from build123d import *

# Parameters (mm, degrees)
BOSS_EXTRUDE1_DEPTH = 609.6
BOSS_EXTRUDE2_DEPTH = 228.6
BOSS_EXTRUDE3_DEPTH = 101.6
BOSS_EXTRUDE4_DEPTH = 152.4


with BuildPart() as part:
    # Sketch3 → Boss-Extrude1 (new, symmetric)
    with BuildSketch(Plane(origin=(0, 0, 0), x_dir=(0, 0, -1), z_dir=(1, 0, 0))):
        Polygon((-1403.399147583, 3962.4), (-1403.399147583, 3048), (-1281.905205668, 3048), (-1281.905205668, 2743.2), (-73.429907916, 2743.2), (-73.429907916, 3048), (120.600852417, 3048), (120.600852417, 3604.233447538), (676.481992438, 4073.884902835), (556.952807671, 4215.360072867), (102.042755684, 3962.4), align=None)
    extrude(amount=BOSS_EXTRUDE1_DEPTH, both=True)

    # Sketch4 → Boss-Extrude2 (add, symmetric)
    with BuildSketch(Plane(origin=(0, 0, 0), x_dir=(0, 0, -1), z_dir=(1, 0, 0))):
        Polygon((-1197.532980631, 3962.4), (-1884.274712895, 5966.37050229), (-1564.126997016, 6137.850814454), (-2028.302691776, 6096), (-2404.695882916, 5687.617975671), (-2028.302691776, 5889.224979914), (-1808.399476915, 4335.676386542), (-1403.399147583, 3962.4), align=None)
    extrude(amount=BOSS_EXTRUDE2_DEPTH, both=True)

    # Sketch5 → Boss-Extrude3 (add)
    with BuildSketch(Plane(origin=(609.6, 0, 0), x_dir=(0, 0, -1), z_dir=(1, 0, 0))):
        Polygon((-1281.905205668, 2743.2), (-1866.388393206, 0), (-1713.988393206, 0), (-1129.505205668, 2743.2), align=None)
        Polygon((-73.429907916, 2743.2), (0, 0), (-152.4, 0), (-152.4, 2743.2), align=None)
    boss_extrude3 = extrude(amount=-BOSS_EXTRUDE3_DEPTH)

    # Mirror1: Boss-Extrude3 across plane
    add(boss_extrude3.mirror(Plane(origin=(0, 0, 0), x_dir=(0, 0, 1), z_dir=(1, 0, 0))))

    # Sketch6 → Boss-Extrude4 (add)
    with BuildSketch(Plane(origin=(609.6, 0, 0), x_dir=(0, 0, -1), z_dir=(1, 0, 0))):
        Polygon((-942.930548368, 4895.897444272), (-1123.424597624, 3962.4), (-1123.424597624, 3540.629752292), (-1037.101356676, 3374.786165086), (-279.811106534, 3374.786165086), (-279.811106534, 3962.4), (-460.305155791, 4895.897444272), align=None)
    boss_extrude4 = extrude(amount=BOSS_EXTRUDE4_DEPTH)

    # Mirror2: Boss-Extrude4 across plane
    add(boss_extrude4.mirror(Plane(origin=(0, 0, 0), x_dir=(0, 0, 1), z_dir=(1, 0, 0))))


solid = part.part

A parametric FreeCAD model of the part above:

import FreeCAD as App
import Part
import Sketcher

V = App.Vector
Q = App.Units.Quantity


def add_polygon(sketch, points):
    """Adds a closed chain of lines whose ends are joined by coincident constraints."""
    first, n = sketch.GeometryCount, len(points)
    for a, b in zip(points, points[1:] + points[:1]):
        sketch.addGeometry(Part.LineSegment(App.Vector(*a, 0), App.Vector(*b, 0)), False)
    for i in range(n):
        sketch.addConstraint(Sketcher.Constraint("Coincident", first + i, 2, first + (i + 1) % n, 1))

doc = App.newDocument("Part")
body = doc.addObject("PartDesign::Body", "Body")

sketch1 = body.newObject("Sketcher::SketchObject", "Sketch")
sketch1.AttachmentSupport = (doc.getObject("YZ_Plane"), [""])
sketch1.MapMode = "FlatFace"
add_polygon(sketch1, [(3962, 1403), (3048, 1403), (3048, 1282), (2743, 1282), (2743, 73), (3048, 73), (3048, -121), (3604, -121), (4074, -676), (4215, -557), (3962, -102)])
sketch1.addConstraint([
    Sketcher.Constraint("Horizontal", 0),
    Sketcher.Constraint("Vertical", 1),
    Sketcher.Constraint("Horizontal", 2),
    Sketcher.Constraint("Vertical", 3),
    Sketcher.Constraint("Horizontal", 4),
    Sketcher.Constraint("Vertical", 5),
    Sketcher.Constraint("Horizontal", 6),
    Sketcher.Constraint("Vertical", 10),
    Sketcher.Constraint("Perpendicular", 7, 8),
    Sketcher.Constraint("Vertical", 1, 2, 4, 2),
    Sketcher.Constraint("DistanceX", 0, 2, 0, 1, Q("36 in")),
    Sketcher.Constraint("DistanceX", 2, 2, 2, 1, Q("12 in")),
    Sketcher.Constraint("DistanceX", -1, 1, 0, 2, Q("120 in")),
    Sketcher.Constraint("DistanceY", 5, 2, 0, 2, Q("60 in")),
    Sketcher.Constraint("DistanceY", 1, 2, 1, 1, Q("121.493942 mm")),
    Sketcher.Constraint("DistanceY", 5, 2, 5, 1, Q("194.03076 mm")),
    Sketcher.Constraint("DistanceY", 7, 2, 4, 2, Q("749.9119 mm")),
    Sketcher.Constraint("DistanceX", 6, 1, 6, 2, Q("556.233448 mm")),
    Sketcher.Constraint("DistanceY", 10, 1, 10, 2, Q("1505.441903 mm")),
    Sketcher.Constraint("DistanceX", 7, 2, 8, 2, Q("141.47517 mm")),
    Sketcher.Constraint("DistanceY", 8, 2, 9, 2, Q("454.910052 mm")),
    Sketcher.Constraint("DistanceY", -1, 1, 0, 2, Q("1403.399148 mm")),
])
pad1 = body.newObject("PartDesign::Pad", "Pad")
pad1.Profile = sketch1
pad1.Length = Q("48 in")
pad1.Midplane = True

sketch2 = body.newObject("Sketcher::SketchObject", "Sketch001")
sketch2.AttachmentSupport = (doc.getObject("YZ_Plane"), [""])
sketch2.MapMode = "FlatFace"
add_polygon(sketch2, [(3962, 1198), (5966, 1884), (6138, 1564), (6096, 2028), (5688, 2405), (5889, 2028), (4336, 1808), (3962, 1403)])
sketch2.addConstraint([
    Sketcher.Constraint("Vertical", 7),
    Sketcher.Constraint("Parallel", 1, 4),
    Sketcher.Constraint("Perpendicular", 3, 6),
    Sketcher.Constraint("Horizontal", 2, 2, 4, 2),
    Sketcher.Constraint("DistanceX", -1, 1, 2, 2, Q("240 in")),
    Sketcher.Constraint("DistanceX", -1, 1, 6, 2, Q("156 in")),
    Sketcher.Constraint("Distance", 3, Q("555.380691 mm")),
    Sketcher.Constraint("DistanceY", 7, 2, 7, 1, Q("205.866167 mm")),
    Sketcher.Constraint("DistanceY", -1, 1, 2, 2, Q("2028.302692 mm")),
    Sketcher.Constraint("DistanceX", -1, 1, 4, 2, Q("5889.22498 mm")),
    Sketcher.Constraint("DistanceY", -1, 1, 7, 2, Q("1197.532981 mm")),
    Sketcher.Constraint("DistanceY", 0, 2, 2, 2, Q("144.027979 mm")),
    Sketcher.Constraint("DistanceY", 2, 2, 3, 2, Q("376.393191 mm")),
    Sketcher.Constraint("DistanceX", 3, 2, 1, 2, Q("450.232839 mm")),
    Sketcher.Constraint("DistanceX", 5, 2, 3, 2, Q("1351.941589 mm")),
    Sketcher.Constraint("DistanceY", 1, 2, 5, 2, Q("244.27248 mm")),
])
pad2 = body.newObject("PartDesign::Pad", "Pad001")
pad2.Profile = sketch2
pad2.Length = Q("18 in")
pad2.Midplane = True

sketch3 = body.newObject("Sketcher::SketchObject", "Sketch002")
sketch3.AttachmentSupport = (doc.getObject("YZ_Plane"), [""])
sketch3.MapMode = "FlatFace"
sketch3.AttachmentOffset = App.Placement(V(0, 0, 24 * 25.4), App.Rotation())
add_polygon(sketch3, [(2743, 1282), (0, 1866), (0, 1714), (2743, 1130)])
add_polygon(sketch3, [(0, 0), (2743, 73), (2743, 152), (0, 152)])
sketch3.addConstraint([
    Sketcher.Constraint("Vertical", 1),
    Sketcher.Constraint("Vertical", 3),
    Sketcher.Constraint("Vertical", 5),
    Sketcher.Constraint("Horizontal", 6),
    Sketcher.Constraint("Vertical", 7),
    Sketcher.Constraint("Coincident", 7, 2, -1, 1),
    Sketcher.Constraint("PointOnObject", 0, 2, -2),
    Sketcher.Constraint("Parallel", 0, 2),
    Sketcher.Constraint("Vertical", 3, 2, 4, 2),
    Sketcher.Constraint("Equal", 3, 7),
    Sketcher.Constraint("DistanceX", 6, 2, 6, 1, Q("108 in")),
    Sketcher.Constraint("DistanceY", 1, 2, 1, 1, Q("6 in")),
    Sketcher.Constraint("Distance", 0, Q("2804.775719 mm")),
    Sketcher.Constraint("Distance", 4, Q("2744.182609 mm")),
    Sketcher.Constraint("DistanceY", -1, 1, 0, 2, Q("1866.388393 mm")),
])
pad3 = body.newObject("PartDesign::Pad", "Pad002")
pad3.Profile = sketch3
pad3.Length = Q("4 in")
pad3.Reversed = True
doc.recompute()

mirrored = body.newObject("PartDesign::Mirrored", "Mirrored")
mirrored.Originals = [pad3]
mirrored.MirrorPlane = (doc.getObject("YZ_Plane"), [""])
body.Tip = mirrored

sketch4 = body.newObject("Sketcher::SketchObject", "Sketch003")
sketch4.AttachmentSupport = (doc.getObject("YZ_Plane"), [""])
sketch4.MapMode = "FlatFace"
sketch4.AttachmentOffset = App.Placement(V(0, 0, 24 * 25.4), App.Rotation())
add_polygon(sketch4, [(4896, 943), (3962, 1123), (3541, 1123), (3375, 1037), (3375, 280), (3962, 280), (4896, 460)])
sketch4.addConstraint([
    Sketcher.Constraint("Horizontal", 1),
    Sketcher.Constraint("Vertical", 3),
    Sketcher.Constraint("Horizontal", 4),
    Sketcher.Constraint("Vertical", 6),
    Sketcher.Constraint("Vertical", 0, 2, 4, 2),
    Sketcher.Constraint("Equal", 0, 5),
    Sketcher.Constraint("DistanceX", -1, 1, 0, 2, Q("156 in")),
    Sketcher.Constraint("DistanceY", 3, 2, 3, 1, Q("757.29025 mm")),
    Sketcher.Constraint("DistanceY", 5, 2, 2, 2, Q("576.796201 mm")),
    Sketcher.Constraint("Distance", 0, Q("950.786822 mm")),
    Sketcher.Constraint("DistanceX", 1, 2, 1, 1, Q("421.770248 mm")),
    Sketcher.Constraint("DistanceX", 4, 1, 4, 2, Q("587.613835 mm")),
    Sketcher.Constraint("DistanceY", 6, 1, 6, 2, Q("482.625393 mm")),
    Sketcher.Constraint("DistanceY", -1, 1, 6, 2, Q("942.930548 mm")),
])
pad4 = body.newObject("PartDesign::Pad", "Pad003")
pad4.Profile = sketch4
pad4.Length = Q("6 in")
doc.recompute()

mirrored2 = body.newObject("PartDesign::Mirrored", "Mirrored001")
mirrored2.Originals = [pad4]
mirrored2.MirrorPlane = (doc.getObject("YZ_Plane"), [""])
body.Tip = mirrored2

doc.recompute()
